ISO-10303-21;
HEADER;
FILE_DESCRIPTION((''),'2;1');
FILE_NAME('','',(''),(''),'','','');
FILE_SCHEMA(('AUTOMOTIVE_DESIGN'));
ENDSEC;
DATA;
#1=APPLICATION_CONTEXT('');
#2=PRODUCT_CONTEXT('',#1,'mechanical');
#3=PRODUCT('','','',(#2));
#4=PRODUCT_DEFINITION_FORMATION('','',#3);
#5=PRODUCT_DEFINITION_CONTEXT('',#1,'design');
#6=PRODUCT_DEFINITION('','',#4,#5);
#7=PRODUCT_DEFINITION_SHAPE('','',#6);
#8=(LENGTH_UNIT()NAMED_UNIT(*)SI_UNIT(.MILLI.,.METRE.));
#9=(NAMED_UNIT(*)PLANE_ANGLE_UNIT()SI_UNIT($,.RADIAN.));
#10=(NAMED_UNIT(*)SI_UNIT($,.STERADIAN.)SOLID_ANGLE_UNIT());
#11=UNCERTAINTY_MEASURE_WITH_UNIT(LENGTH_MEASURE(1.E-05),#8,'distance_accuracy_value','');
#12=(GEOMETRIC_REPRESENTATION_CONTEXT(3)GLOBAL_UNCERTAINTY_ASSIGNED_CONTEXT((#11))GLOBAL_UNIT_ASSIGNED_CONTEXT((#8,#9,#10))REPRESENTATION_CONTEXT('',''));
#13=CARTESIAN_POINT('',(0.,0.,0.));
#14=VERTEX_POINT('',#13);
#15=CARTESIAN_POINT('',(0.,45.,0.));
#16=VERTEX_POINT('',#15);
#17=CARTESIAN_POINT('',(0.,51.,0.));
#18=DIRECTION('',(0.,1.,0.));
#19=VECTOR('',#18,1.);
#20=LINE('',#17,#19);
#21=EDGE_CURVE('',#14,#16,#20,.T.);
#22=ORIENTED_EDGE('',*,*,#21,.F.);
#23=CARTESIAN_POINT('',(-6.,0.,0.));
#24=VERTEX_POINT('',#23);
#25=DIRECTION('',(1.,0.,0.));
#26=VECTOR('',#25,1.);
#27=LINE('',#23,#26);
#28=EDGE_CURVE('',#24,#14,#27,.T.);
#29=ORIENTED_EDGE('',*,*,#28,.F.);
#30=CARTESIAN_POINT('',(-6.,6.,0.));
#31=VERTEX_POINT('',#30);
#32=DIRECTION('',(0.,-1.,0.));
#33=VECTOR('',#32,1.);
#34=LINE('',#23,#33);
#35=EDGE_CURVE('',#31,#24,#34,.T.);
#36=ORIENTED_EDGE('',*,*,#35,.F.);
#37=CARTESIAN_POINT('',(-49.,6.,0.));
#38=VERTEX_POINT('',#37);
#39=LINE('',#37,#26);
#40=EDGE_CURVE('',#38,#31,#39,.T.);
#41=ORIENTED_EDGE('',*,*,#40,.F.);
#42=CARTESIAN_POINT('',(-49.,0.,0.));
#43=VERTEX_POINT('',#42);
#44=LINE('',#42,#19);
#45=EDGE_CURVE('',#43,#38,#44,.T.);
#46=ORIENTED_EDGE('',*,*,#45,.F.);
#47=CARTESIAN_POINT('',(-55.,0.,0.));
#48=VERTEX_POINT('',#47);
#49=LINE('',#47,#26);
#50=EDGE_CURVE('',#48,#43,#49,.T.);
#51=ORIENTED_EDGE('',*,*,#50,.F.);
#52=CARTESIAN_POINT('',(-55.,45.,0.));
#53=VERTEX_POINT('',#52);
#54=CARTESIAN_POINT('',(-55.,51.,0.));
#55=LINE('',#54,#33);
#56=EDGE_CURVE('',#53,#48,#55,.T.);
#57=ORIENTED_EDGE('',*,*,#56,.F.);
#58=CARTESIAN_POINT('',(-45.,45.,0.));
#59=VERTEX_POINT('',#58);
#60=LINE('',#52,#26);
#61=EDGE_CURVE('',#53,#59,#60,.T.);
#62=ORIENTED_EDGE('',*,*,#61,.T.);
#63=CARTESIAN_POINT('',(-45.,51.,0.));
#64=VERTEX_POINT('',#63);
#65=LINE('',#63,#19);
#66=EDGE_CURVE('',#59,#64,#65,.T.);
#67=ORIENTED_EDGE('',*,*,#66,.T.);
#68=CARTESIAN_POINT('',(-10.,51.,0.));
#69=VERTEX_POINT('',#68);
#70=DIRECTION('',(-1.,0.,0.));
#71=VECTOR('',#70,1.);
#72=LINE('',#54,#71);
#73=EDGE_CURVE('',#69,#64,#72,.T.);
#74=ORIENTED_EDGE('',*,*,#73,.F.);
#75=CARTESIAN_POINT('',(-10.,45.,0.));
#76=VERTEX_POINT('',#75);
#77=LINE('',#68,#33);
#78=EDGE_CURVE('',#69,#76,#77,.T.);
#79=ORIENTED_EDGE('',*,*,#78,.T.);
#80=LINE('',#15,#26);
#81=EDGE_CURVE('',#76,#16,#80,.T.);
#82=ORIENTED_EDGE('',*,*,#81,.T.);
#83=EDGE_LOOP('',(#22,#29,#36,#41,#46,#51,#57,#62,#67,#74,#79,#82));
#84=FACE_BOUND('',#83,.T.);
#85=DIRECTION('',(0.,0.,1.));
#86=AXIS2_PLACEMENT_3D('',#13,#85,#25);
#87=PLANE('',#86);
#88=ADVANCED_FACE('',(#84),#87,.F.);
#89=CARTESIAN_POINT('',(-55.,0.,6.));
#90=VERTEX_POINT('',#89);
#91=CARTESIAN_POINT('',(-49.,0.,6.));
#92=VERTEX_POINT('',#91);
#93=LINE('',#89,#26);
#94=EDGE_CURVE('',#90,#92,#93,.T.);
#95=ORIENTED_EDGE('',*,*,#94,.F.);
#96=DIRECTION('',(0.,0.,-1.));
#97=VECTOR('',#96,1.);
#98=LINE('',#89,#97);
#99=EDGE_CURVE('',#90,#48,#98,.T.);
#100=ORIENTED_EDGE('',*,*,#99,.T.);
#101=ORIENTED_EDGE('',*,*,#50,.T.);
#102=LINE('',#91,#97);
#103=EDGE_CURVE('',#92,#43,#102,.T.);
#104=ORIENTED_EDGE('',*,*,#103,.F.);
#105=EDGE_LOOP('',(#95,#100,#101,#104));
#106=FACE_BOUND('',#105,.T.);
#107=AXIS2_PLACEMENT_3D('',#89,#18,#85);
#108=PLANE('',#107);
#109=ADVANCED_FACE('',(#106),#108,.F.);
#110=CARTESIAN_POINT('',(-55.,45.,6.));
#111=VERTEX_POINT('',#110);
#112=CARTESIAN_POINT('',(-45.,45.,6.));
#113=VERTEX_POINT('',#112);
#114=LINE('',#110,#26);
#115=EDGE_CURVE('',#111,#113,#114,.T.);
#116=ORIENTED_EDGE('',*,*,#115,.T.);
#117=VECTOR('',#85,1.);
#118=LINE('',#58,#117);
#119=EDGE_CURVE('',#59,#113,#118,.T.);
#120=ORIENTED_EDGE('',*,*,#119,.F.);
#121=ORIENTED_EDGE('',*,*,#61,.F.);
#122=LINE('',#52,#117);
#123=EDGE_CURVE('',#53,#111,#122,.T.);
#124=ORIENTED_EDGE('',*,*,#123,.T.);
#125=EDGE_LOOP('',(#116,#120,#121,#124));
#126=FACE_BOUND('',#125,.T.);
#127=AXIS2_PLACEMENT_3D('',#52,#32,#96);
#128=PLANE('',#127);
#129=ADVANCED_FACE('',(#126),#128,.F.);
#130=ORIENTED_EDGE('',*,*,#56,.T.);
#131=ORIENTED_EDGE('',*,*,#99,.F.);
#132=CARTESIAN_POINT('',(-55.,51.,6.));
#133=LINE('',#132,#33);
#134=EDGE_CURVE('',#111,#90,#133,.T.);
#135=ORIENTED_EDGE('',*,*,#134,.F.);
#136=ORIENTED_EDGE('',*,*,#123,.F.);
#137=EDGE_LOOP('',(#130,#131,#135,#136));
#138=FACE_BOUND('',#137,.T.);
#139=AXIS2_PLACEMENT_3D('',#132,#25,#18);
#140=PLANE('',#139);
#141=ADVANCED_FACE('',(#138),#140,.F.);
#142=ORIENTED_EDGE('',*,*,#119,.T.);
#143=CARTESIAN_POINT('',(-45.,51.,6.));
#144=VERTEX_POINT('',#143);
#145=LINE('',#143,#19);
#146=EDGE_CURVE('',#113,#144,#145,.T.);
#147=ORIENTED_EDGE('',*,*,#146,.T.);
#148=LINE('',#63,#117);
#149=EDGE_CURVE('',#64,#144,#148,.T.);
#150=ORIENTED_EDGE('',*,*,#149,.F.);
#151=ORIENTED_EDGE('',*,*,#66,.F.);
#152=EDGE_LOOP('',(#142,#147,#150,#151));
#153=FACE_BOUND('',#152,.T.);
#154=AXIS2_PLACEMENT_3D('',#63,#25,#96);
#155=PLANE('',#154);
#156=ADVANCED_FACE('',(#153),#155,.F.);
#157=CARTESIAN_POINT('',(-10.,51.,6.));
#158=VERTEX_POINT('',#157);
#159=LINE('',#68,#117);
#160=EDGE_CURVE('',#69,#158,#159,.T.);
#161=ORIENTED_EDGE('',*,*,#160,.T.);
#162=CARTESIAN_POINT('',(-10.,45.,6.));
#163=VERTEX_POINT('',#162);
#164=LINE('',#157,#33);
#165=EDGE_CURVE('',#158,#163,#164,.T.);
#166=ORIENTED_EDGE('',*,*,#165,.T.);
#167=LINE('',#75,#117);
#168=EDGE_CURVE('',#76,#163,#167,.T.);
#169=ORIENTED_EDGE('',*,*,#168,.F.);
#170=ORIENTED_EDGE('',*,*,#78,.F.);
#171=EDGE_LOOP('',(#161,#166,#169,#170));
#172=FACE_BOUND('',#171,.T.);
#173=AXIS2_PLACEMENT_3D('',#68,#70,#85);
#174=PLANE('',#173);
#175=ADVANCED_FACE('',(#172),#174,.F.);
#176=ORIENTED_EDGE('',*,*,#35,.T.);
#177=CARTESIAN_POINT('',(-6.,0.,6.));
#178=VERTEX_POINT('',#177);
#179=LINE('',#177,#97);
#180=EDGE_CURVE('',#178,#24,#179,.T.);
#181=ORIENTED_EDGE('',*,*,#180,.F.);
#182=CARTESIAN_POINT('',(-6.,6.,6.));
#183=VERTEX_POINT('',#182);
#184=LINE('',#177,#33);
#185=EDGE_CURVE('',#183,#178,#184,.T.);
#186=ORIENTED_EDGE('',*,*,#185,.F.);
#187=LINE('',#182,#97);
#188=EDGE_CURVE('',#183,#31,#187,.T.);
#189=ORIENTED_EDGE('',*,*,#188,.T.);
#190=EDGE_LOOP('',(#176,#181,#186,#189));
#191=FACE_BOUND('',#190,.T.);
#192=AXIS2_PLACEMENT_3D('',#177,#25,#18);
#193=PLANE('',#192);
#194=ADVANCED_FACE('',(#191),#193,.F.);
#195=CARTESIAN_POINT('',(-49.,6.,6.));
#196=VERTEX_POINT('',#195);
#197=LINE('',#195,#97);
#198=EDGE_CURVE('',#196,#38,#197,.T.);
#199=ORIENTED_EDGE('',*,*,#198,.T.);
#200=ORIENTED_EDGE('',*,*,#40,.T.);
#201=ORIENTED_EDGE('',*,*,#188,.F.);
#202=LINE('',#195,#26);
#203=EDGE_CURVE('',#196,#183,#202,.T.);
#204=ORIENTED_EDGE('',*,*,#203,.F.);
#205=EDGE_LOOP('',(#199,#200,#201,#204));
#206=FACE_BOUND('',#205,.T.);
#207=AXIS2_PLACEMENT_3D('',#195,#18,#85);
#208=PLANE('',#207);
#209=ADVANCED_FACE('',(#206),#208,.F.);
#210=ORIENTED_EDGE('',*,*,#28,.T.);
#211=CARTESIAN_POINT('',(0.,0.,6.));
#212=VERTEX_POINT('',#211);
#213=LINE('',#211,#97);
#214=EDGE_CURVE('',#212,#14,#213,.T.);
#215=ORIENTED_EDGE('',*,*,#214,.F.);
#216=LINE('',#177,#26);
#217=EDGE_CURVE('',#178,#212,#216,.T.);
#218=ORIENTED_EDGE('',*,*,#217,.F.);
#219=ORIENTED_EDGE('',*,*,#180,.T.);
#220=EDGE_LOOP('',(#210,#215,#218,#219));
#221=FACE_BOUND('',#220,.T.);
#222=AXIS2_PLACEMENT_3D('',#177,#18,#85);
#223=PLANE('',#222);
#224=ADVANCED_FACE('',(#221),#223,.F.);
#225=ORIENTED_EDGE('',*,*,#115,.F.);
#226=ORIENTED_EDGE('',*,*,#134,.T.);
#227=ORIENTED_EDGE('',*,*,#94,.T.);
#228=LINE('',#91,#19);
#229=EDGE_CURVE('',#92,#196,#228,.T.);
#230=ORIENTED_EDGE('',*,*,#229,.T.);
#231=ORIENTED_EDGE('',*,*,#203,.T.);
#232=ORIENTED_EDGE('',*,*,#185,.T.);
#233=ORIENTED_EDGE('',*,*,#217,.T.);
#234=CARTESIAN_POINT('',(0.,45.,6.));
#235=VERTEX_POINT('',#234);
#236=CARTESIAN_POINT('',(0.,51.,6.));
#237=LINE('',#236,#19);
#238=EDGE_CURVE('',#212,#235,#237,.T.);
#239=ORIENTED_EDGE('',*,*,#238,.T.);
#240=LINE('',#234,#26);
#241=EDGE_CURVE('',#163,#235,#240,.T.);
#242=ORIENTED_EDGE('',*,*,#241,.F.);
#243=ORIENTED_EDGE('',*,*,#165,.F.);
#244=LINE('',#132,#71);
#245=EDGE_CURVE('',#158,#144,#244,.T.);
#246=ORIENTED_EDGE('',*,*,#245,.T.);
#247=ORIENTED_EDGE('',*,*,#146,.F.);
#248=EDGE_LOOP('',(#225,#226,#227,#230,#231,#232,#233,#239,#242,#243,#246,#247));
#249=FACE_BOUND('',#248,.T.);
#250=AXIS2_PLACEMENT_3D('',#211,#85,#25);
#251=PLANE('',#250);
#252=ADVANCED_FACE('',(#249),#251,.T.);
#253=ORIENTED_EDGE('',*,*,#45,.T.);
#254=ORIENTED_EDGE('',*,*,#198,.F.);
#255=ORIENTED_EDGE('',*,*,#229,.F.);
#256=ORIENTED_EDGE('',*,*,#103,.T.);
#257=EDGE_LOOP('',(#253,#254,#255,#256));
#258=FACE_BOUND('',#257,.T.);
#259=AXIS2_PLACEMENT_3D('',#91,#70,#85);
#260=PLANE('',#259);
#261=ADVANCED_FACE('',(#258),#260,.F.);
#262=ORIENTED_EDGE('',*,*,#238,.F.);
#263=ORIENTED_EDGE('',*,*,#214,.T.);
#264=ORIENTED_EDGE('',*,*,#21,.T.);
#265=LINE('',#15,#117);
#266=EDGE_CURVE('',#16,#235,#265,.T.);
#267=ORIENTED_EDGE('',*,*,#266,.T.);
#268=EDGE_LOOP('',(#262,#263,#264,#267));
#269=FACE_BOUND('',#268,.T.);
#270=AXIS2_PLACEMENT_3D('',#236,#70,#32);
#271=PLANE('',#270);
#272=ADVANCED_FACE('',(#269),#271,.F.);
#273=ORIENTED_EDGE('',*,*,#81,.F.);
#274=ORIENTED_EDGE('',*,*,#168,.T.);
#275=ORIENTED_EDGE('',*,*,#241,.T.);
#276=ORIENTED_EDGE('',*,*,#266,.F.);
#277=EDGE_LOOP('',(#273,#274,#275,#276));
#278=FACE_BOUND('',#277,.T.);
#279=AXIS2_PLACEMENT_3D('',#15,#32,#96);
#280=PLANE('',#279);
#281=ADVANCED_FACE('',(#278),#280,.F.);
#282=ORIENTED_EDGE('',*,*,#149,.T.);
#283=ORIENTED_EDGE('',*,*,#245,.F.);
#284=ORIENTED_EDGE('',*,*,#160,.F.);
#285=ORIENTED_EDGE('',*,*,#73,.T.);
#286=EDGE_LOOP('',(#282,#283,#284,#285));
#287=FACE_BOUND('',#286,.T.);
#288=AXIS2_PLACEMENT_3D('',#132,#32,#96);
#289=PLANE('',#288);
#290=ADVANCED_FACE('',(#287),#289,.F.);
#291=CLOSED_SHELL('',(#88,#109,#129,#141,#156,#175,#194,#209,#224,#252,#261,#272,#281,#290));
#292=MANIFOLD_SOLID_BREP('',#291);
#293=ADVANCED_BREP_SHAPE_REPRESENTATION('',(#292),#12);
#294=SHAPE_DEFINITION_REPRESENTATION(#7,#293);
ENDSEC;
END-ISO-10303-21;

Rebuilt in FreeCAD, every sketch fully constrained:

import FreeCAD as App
import Part
import Sketcher

V = App.Vector

doc = App.newDocument("Part")
body = doc.addObject("PartDesign::Body", "Body")

# Sketch on XY plane
sketch1 = doc.addObject("Sketcher::SketchObject", "Sketch")
body.addObject(sketch1)
sketch1.AttachmentSupport = (doc.XY_Plane, [""])
sketch1.MapMode = "FlatFace"
sketch1.addGeometry(Part.LineSegment(V(-6, 0, 0), V(0, 0, 0)), False)
sketch1.addGeometry(Part.LineSegment(V(0, 0, 0), V(0, 51, 0)), False)
sketch1.addGeometry(Part.LineSegment(V(0, 51, 0), V(-55, 51, 0)), False)
sketch1.addGeometry(Part.LineSegment(V(-55, 51, 0), V(-55, 0, 0)), False)
sketch1.addGeometry(Part.LineSegment(V(-55, 0, 0), V(-49, 0, 0)), False)
sketch1.addGeometry(Part.LineSegment(V(-49, 0, 0), V(-49, 6, 0)), False)
sketch1.addGeometry(Part.LineSegment(V(-49, 6, 0), V(-6, 6, 0)), False)
sketch1.addGeometry(Part.LineSegment(V(-6, 6, 0), V(-6, 0, 0)), False)
sketch1.addConstraint(Sketcher.Constraint("Coincident", 0, 2, 1, 1))
sketch1.addConstraint(Sketcher.Constraint("Coincident", 1, 2, 2, 1))
sketch1.addConstraint(Sketcher.Constraint("Coincident", 2, 2, 3, 1))
sketch1.addConstraint(Sketcher.Constraint("Coincident", 3, 2, 4, 1))
sketch1.addConstraint(Sketcher.Constraint("Coincident", 4, 2, 5, 1))
sketch1.addConstraint(Sketcher.Constraint("Coincident", 5, 2, 6, 1))
sketch1.addConstraint(Sketcher.Constraint("Coincident", 6, 2, 7, 1))
sketch1.addConstraint(Sketcher.Constraint("Coincident", 7, 2, 0, 1))
sketch1.addConstraint(Sketcher.Constraint("Horizontal", 0))
sketch1.addConstraint(Sketcher.Constraint("Vertical", 1))
sketch1.addConstraint(Sketcher.Constraint("Horizontal", 2))
sketch1.addConstraint(Sketcher.Constraint("Vertical", 3))
sketch1.addConstraint(Sketcher.Constraint("Horizontal", 4))
sketch1.addConstraint(Sketcher.Constraint("Vertical", 5))
sketch1.addConstraint(Sketcher.Constraint("Horizontal", 6))
sketch1.addConstraint(Sketcher.Constraint("Vertical", 7))
sketch1.addConstraint(Sketcher.Constraint("Coincident", 0, 2, -1, 1))
sketch1.addConstraint(Sketcher.Constraint("PointOnObject", 3, 2, -1))
sketch1.addConstraint(Sketcher.Constraint("Equal", 0, 4))
sketch1.addConstraint(Sketcher.Constraint("Equal", 4, 5))
sketch1.addConstraint(Sketcher.Constraint("DistanceX", 0, 1, 0, 2, 6.0))
sketch1.addConstraint(Sketcher.Constraint("DistanceX", 2, 2, 2, 1, 55.0))
sketch1.addConstraint(Sketcher.Constraint("DistanceY", 1, 1, 1, 2, 51.0))
pad1 = doc.addObject("PartDesign::Pad", "Pad")
body.addObject(pad1)
pad1.Profile = sketch1
pad1.Length = 6

# Sketch on XY plane
sketch2 = doc.addObject("Sketcher::SketchObject", "Sketch001")
body.addObject(sketch2)
sketch2.AttachmentSupport = (doc.XY_Plane, [""])
sketch2.MapMode = "FlatFace"
sketch2.AttachmentOffset = App.Placement(V(0, 0, 6), App.Rotation())
sketch2.addGeometry(Part.LineSegment(V(-55, 51, 0), V(-55, 45, 0)), False)
sketch2.addGeometry(Part.LineSegment(V(-55, 45, 0), V(-45, 45, 0)), False)
sketch2.addGeometry(Part.LineSegment(V(-45, 45, 0), V(-45, 51, 0)), False)
sketch2.addGeometry(Part.LineSegment(V(-45, 51, 0), V(-55, 51, 0)), False)
sketch2.addGeometry(Part.LineSegment(V(-10, 51, 0), V(-10, 45, 0)), False)
sketch2.addGeometry(Part.LineSegment(V(-10, 45, 0), V(0, 45, 0)), False)
sketch2.addGeometry(Part.LineSegment(V(0, 45, 0), V(0, 51, 0)), False)
sketch2.addGeometry(Part.LineSegment(V(0, 51, 0), V(-10, 51, 0)), False)
sketch2.addConstraint(Sketcher.Constraint("Coincident", 0, 2, 1, 1))
sketch2.addConstraint(Sketcher.Constraint("Coincident", 1, 2, 2, 1))
sketch2.addConstraint(Sketcher.Constraint("Coincident", 2, 2, 3, 1))
sketch2.addConstraint(Sketcher.Constraint("Coincident", 3, 2, 0, 1))
sketch2.addConstraint(Sketcher.Constraint("Coincident", 4, 2, 5, 1))
sketch2.addConstraint(Sketcher.Constraint("Coincident", 5, 2, 6, 1))
sketch2.addConstraint(Sketcher.Constraint("Coincident", 6, 2, 7, 1))
sketch2.addConstraint(Sketcher.Constraint("Coincident", 7, 2, 4, 1))
sketch2.addConstraint(Sketcher.Constraint("Vertical", 0))
sketch2.addConstraint(Sketcher.Constraint("Horizontal", 1))
sketch2.addConstraint(Sketcher.Constraint("Vertical", 2))
sketch2.addConstraint(Sketcher.Constraint("Horizontal", 3))
sketch2.addConstraint(Sketcher.Constraint("Vertical", 4))
sketch2.addConstraint(Sketcher.Constraint("Horizontal", 5))
sketch2.addConstraint(Sketcher.Constraint("Vertical", 6))
sketch2.addConstraint(Sketcher.Constraint("Horizontal", 7))
sketch2.addConstraint(Sketcher.Constraint("PointOnObject", 5, 2, -2))
sketch2.addConstraint(Sketcher.Constraint("Horizontal", 1, 2, 4, 2))
sketch2.addConstraint(Sketcher.Constraint("Horizontal", 3, 2, 6, 2))
sketch2.addConstraint(Sketcher.Constraint("Equal", 3, 5))
sketch2.addConstraint(Sketcher.Constraint("DistanceX", 1, 1, 1, 2, 10.0))
sketch2.addConstraint(Sketcher.Constraint("DistanceY", 0, 2, 0, 1, 6.0))
sketch2.addConstraint(Sketcher.Constraint("DistanceX", 0, 2, -1, 1, 55.0))
sketch2.addConstraint(Sketcher.Constraint("DistanceY", -1, 1, 0, 2, 45.0))
pocket1 = doc.addObject("PartDesign::Pocket", "Pocket")
body.addObject(pocket1)
pocket1.Profile = sketch2
pocket1.Length = 6

doc.recompute()
